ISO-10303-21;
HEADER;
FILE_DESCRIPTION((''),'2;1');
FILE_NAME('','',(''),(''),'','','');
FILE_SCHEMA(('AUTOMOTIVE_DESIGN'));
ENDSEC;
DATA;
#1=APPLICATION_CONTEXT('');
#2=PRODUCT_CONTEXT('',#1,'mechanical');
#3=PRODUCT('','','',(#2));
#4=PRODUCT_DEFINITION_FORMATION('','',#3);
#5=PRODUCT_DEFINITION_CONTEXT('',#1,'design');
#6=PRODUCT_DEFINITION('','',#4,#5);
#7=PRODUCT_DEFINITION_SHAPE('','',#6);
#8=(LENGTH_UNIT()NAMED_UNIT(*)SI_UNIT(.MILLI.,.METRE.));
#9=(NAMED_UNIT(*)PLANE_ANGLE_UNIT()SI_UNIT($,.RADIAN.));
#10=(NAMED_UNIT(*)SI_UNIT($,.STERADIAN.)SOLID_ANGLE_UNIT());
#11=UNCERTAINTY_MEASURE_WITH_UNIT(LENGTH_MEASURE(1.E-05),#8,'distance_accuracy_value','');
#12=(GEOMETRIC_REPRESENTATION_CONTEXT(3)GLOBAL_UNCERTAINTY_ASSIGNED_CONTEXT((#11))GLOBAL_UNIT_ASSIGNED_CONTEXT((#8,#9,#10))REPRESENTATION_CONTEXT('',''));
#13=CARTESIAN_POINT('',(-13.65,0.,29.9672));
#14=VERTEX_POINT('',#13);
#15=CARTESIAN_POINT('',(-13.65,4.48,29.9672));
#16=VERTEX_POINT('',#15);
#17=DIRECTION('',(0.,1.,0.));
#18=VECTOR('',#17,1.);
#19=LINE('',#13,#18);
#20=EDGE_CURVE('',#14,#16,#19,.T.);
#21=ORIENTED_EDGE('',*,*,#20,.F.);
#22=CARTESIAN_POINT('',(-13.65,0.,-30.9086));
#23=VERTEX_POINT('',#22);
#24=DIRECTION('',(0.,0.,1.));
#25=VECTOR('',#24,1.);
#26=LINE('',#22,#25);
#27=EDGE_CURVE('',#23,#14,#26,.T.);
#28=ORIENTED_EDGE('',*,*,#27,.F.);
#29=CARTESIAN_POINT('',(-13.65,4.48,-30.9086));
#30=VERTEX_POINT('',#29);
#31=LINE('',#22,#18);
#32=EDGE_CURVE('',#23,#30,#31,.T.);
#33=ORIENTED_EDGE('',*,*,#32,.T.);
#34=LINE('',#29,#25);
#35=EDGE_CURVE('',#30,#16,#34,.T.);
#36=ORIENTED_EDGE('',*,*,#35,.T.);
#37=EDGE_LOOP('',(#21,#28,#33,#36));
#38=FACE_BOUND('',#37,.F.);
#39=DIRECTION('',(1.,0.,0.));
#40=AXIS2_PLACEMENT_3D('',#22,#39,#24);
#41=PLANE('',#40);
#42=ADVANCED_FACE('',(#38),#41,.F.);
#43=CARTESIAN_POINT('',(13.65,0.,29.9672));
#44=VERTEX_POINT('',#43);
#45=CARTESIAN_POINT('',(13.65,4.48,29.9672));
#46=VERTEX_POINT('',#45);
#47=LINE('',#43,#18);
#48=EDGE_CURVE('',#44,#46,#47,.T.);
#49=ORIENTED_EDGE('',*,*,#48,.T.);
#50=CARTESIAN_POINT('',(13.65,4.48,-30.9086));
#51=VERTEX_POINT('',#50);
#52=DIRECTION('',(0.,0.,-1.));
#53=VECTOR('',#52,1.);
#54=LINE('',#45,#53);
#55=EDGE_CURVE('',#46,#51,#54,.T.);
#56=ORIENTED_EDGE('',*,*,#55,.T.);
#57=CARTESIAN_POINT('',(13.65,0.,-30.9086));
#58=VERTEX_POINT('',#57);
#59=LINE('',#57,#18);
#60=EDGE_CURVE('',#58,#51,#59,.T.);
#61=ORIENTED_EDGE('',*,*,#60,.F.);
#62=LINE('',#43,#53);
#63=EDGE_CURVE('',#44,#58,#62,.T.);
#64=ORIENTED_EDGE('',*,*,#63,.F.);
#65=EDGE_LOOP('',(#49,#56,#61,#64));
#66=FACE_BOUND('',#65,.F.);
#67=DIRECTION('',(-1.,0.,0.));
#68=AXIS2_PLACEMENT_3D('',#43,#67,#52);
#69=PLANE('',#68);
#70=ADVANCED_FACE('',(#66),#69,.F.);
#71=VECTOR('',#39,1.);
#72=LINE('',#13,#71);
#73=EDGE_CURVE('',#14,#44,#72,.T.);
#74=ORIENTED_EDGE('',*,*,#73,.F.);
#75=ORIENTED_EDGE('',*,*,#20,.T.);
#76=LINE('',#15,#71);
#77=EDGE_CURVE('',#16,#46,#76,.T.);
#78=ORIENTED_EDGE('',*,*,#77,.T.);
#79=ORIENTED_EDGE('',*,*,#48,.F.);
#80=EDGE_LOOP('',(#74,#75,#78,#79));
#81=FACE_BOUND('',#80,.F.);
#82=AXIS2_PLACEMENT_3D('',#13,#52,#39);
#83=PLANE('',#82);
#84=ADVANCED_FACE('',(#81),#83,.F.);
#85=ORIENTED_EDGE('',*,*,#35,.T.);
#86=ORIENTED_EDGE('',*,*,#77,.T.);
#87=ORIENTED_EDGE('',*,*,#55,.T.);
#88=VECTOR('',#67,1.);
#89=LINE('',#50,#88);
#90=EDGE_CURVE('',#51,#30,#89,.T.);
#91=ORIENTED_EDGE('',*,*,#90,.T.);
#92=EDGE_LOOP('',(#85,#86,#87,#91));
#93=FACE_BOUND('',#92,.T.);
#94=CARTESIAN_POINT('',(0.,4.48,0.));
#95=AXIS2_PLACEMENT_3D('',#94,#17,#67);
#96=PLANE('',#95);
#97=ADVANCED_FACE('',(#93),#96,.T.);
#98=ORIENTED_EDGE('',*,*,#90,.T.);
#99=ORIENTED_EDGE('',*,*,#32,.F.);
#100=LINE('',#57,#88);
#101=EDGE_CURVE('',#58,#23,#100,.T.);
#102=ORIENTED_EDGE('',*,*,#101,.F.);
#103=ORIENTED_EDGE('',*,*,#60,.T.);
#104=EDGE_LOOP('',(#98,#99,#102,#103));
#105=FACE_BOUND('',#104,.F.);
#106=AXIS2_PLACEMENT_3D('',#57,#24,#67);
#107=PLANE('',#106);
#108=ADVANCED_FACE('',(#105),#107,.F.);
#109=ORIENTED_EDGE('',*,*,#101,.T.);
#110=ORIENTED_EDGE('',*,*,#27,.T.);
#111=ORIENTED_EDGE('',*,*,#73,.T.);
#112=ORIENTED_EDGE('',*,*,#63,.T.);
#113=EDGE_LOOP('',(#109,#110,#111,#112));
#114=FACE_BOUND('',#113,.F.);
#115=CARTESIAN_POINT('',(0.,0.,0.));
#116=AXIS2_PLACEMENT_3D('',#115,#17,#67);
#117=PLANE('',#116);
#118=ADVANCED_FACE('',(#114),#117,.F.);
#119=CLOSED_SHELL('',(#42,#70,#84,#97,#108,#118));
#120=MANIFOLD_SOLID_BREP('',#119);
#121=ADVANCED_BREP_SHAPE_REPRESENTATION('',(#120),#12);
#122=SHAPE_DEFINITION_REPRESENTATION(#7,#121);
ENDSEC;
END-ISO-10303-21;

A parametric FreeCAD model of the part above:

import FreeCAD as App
import Part
import Sketcher


def add_polygon(sketch, points):
    """Adds a closed chain of lines whose ends are joined by coincident constraints."""
    first, n = sketch.GeometryCount, len(points)
    for a, b in zip(points, points[1:] + points[:1]):
        sketch.addGeometry(Part.LineSegment(App.Vector(*a, 0), App.Vector(*b, 0)), False)
    for i in range(n):
        sketch.addConstraint(Sketcher.Constraint("Coincident", first + i, 2, first + (i + 1) % n, 1))

doc = App.newDocument("Part")
body = doc.addObject("PartDesign::Body", "Body")

sketch1 = doc.addObject("Sketcher::SketchObject", "Sketch")
body.addObject(sketch1)
sketch1.AttachmentSupport = (doc.XZ_Plane, [""])
sketch1.MapMode = "FlatFace"
add_polygon(sketch1, [(-14, -31), (-14, 30), (14, 30), (14, -31)])
sketch1.addConstraint(Sketcher.Constraint("Vertical", 0))
sketch1.addConstraint(Sketcher.Constraint("Horizontal", 1))
sketch1.addConstraint(Sketcher.Constraint("Vertical", 2))
sketch1.addConstraint(Sketcher.Constraint("Horizontal", 3))
sketch1.addConstraint(Sketcher.Constraint("DistanceX", 1, 1, 1, 2, 27.3))
sketch1.addConstraint(Sketcher.Constraint("DistanceX", 0, 2, -1, 1, 13.65))
sketch1.addConstraint(Sketcher.Constraint("DistanceY", 0, 1, 0, 2, 60.8758))
sketch1.addConstraint(Sketcher.Constraint("DistanceY", -1, 1, 0, 2, 29.9672))
pad1 = doc.addObject("PartDesign::Pad", "Pad")
body.addObject(pad1)
pad1.Profile = sketch1
pad1.Length = 4.48
pad1.Reversed = True

doc.recompute()
